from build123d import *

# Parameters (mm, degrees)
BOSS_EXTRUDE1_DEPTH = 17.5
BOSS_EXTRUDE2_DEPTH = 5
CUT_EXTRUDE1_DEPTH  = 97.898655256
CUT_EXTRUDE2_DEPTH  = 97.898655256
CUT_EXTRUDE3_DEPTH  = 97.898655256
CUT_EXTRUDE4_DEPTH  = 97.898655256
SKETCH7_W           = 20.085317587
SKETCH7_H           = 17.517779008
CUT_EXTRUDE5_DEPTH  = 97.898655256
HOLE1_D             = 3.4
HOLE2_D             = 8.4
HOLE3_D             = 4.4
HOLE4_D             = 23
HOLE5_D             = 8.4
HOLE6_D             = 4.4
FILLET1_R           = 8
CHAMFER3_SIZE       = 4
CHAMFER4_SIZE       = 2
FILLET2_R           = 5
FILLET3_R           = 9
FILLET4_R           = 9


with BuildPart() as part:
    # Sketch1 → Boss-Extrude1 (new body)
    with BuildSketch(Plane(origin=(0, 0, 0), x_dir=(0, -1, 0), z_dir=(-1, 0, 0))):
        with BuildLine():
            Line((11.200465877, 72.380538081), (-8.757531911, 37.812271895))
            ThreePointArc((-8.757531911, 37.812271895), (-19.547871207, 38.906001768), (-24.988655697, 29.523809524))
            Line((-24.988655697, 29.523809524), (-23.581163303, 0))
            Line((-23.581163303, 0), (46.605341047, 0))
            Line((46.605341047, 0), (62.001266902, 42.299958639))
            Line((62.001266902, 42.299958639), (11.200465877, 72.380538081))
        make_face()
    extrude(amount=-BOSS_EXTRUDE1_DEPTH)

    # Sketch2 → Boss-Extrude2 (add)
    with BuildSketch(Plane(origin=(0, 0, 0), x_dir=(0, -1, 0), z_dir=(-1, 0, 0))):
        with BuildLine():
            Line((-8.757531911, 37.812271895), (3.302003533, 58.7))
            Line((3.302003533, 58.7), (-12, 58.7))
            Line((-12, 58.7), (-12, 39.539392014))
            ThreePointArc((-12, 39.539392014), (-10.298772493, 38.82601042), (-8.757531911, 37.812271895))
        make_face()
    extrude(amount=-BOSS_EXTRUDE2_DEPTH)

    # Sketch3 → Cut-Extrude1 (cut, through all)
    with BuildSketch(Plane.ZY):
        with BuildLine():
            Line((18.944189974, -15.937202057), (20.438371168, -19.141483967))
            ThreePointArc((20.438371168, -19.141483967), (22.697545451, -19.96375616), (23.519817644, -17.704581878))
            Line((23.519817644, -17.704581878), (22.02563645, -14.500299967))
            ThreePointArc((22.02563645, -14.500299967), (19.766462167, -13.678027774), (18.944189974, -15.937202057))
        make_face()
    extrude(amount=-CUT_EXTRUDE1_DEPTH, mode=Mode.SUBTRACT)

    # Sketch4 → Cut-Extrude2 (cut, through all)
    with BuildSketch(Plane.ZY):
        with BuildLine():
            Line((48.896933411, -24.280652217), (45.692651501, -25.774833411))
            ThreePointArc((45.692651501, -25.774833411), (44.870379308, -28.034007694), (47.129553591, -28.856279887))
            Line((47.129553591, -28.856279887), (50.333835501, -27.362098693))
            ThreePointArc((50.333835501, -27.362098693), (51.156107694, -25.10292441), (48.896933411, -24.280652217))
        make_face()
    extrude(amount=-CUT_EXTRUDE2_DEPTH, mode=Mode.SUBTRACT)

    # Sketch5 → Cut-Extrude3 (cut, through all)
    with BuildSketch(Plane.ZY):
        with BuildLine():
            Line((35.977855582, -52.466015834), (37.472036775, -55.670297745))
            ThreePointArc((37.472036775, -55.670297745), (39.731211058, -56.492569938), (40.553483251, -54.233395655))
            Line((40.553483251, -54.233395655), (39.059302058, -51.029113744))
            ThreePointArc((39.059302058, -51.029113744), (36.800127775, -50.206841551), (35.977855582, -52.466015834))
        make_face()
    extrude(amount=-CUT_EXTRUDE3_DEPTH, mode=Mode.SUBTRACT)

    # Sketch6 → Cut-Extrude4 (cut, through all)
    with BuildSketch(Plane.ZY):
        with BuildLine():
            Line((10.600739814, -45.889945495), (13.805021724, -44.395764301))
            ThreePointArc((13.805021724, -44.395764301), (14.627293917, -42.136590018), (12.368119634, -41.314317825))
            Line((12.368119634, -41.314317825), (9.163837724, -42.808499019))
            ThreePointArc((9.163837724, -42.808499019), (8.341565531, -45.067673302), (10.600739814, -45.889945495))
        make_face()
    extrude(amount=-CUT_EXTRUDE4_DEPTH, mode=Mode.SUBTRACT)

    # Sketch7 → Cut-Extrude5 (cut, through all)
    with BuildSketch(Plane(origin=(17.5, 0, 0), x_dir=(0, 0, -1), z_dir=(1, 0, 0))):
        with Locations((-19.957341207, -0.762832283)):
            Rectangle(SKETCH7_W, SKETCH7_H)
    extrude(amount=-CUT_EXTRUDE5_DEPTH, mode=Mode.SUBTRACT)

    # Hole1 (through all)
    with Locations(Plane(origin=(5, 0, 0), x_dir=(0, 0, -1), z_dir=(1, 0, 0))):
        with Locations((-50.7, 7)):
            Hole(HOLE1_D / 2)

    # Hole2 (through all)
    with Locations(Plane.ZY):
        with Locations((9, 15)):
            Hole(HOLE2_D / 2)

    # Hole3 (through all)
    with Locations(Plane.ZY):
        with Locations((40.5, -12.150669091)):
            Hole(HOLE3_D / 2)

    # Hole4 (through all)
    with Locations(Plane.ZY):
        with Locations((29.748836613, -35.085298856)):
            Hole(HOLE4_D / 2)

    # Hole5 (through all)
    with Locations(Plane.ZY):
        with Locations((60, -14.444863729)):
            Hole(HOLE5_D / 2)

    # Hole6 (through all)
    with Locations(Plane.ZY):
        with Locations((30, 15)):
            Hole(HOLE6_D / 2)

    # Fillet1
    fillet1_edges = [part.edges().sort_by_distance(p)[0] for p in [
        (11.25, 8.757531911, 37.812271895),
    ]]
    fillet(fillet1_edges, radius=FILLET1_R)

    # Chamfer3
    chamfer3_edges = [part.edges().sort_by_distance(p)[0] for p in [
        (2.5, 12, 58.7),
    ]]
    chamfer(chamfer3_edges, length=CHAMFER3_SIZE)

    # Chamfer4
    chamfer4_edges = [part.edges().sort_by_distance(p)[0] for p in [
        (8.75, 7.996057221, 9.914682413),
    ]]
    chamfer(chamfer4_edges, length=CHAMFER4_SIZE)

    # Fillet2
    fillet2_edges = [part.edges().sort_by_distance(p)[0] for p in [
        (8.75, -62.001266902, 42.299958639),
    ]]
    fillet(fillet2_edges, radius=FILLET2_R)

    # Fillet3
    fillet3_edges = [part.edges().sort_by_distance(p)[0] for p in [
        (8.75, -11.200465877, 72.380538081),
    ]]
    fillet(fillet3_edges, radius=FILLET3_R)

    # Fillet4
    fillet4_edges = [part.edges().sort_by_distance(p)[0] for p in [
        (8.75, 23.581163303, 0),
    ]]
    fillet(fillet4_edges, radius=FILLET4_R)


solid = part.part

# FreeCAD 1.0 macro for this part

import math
import FreeCAD as App
import Part
import Sketcher

V = App.Vector
Q = App.Units.Quantity


def edges_at(feature, points):
    """Names of the edges that pass closest to the given points."""
    edges = feature.Shape.Edges
    near = lambda p: min(range(len(edges)), key=lambda i: edges[i].distToShape(Part.Vertex(*p))[0])
    return sorted({f"Edge{near(p) + 1}" for p in points})


def add_polygon(sketch, points):
    """Adds a closed chain of lines whose ends are joined by coincident constraints."""
    first, n = sketch.GeometryCount, len(points)
    for a, b in zip(points, points[1:] + points[:1]):
        sketch.addGeometry(Part.LineSegment(App.Vector(*a, 0), App.Vector(*b, 0)), False)
    for i in range(n):
        sketch.addConstraint(Sketcher.Constraint("Coincident", first + i, 2, first + (i + 1) % n, 1))

doc = App.newDocument("Part")
body = doc.addObject("PartDesign::Body", "Body")

# Sketch on YZ plane
sketch1 = body.newObject("Sketcher::SketchObject", "Sketch")
sketch1.AttachmentSupport = (doc.getObject("YZ_Plane"), [""])
sketch1.MapMode = "FlatFace"
sketch1.addGeometry([
    Part.LineSegment(V(-11, 72, 0), V(9, 38, 0)),  # 0
    Part.ArcOfCircle(Part.Circle(V(15, 30, 0), V(0, 0, 1), 10), math.radians(-3), math.radians(129)),  # 1
    Part.LineSegment(V(25, 30, 0), V(24, 0, 0)),  # 2
    Part.LineSegment(V(24, 0, 0), V(-47, 0, 0)),  # 3
    Part.LineSegment(V(-47, 0, 0), V(-62, 42, 0)),  # 4
    Part.LineSegment(V(-62, 42, 0), V(-11, 72, 0)),  # 5
], False)
sketch1.addConstraint([
    Sketcher.Constraint("Coincident", 0, 2, 1, 2),
    Sketcher.Constraint("Tangent", 1, 1, 2, 1),
    Sketcher.Constraint("Coincident", 2, 2, 3, 1),
    Sketcher.Constraint("Coincident", 3, 2, 4, 1),
    Sketcher.Constraint("Coincident", 4, 2, 5, 1),
    Sketcher.Constraint("Coincident", 5, 2, 0, 1),
    Sketcher.Constraint("Horizontal", 3),
    Sketcher.Constraint("PointOnObject", 2, 2, -1),
    Sketcher.Constraint("Radius", 1, 10.0),
    Sketcher.Constraint("Angle", 0, Q("-60 deg")),
    Sketcher.Constraint("Angle", 4, Q("110 deg")),
    Sketcher.Constraint("DistanceX", -1, 1, 1, 3, 15.0),
    Sketcher.Constraint("DistanceY", -1, 1, 1, 3, 30.0),
    Sketcher.Constraint("DistanceX", 4, 2, 0, 2, 70.758799),
    Sketcher.Constraint("DistanceX", 4, 2, 5, 2, 50.800801),
    Sketcher.Constraint("Distance", 2, 29.55734),
    Sketcher.Constraint("DistanceX", 3, 2, 3, 1, 70.186504),
    Sketcher.Constraint("DistanceX", -1, 1, 0, 2, 8.757532),
])
pad1 = body.newObject("PartDesign::Pad", "Pad")
pad1.Profile = sketch1
pad1.Length = 17.5

# Sketch on YZ plane
sketch2 = body.newObject("Sketcher::SketchObject", "Sketch001")
sketch2.AttachmentSupport = (doc.getObject("YZ_Plane"), [""])
sketch2.MapMode = "FlatFace"
sketch2.addGeometry([
    Part.LineSegment(V(8.8, 37.8, 0), V(-3.3, 58.7, 0)),
    Part.LineSegment(V(-3.3, 58.7, 0), V(12, 58.7, 0)),
    Part.LineSegment(V(12, 58.7, 0), V(12, 39.5, 0)),
    Part.ArcOfCircle(Part.Circle(V(15, 30, 0), V(0, 0, 1), 10), math.radians(107), math.radians(129)),
], False)
sketch2.addConstraint([
    Sketcher.Constraint("Coincident", 0, 2, 1, 1),
    Sketcher.Constraint("Coincident", 1, 2, 2, 1),
    Sketcher.Constraint("Coincident", 2, 2, 3, 1),
    Sketcher.Constraint("Coincident", 3, 2, 0, 1),
    Sketcher.Constraint("Horizontal", 1),
    Sketcher.Constraint("Vertical", 2),
    Sketcher.Constraint("Radius", 3, 10.0),
    Sketcher.Constraint("Angle", 0, Q("120 deg")),
    Sketcher.Constraint("DistanceX", -1, 1, 3, 3, 15.0),
    Sketcher.Constraint("DistanceY", -1, 1, 3, 3, 30.0),
    Sketcher.Constraint("DistanceX", -1, 1, 1, 2, 12.0),
    Sketcher.Constraint("DistanceY", -1, 1, 0, 2, 58.7),
    Sketcher.Constraint("Distance", 0, 24.119071),
])
pad2 = body.newObject("PartDesign::Pad", "Pad001")
pad2.Profile = sketch2
pad2.Length = 5

# Sketch on YZ plane
sketch3 = body.newObject("Sketcher::SketchObject", "Sketch002")
sketch3.AttachmentSupport = (doc.getObject("YZ_Plane"), [""])
sketch3.MapMode = "FlatFace"
sketch3.addGeometry([
    Part.LineSegment(V(-15.9, 18.9, 0), V(-19.1, 20.4, 0)),
    Part.ArcOfCircle(Part.Circle(V(-18.4, 22, 0), V(0, 0, 1), 1.7), math.radians(65), math.radians(245)),
    Part.LineSegment(V(-17.7, 23.5, 0), V(-14.5, 22, 0)),
    Part.ArcOfCircle(Part.Circle(V(-15.2, 20.5, 0), V(0, 0, 1), 1.7), math.radians(-115), math.radians(65)),
], False)
sketch3.addConstraint([
    Sketcher.Constraint("Tangent", 0, 2, 1, 2),
    Sketcher.Constraint("Tangent", 1, 1, 2, 1),
    Sketcher.Constraint("Tangent", 2, 2, 3, 2),
    Sketcher.Constraint("Tangent", 3, 1, 0, 1),
    Sketcher.Constraint("Equal", 1, 3),
    Sketcher.Constraint("Radius", 1, 1.7),
    Sketcher.Constraint("Angle", 0, Q("155 deg")),
    Sketcher.Constraint("DistanceX", 2, 2, -1, 1, 14.5003),
    Sketcher.Constraint("DistanceY", -1, 1, 0, 2, 20.438371),
    Sketcher.Constraint("DistanceX", 1, 1, -1, 1, 17.704582),
])
pocket1 = body.newObject("PartDesign::Pocket", "Pocket")
pocket1.Profile = sketch3
pocket1.Type = "ThroughAll"
pocket1.Reversed = True

# Sketch on YZ plane
sketch4 = body.newObject("Sketcher::SketchObject", "Sketch003")
sketch4.AttachmentSupport = (doc.getObject("YZ_Plane"), [""])
sketch4.MapMode = "FlatFace"
sketch4.addGeometry([
    Part.LineSegment(V(-24.3, 48.9, 0), V(-25.8, 45.7, 0)),
    Part.ArcOfCircle(Part.Circle(V(-27.3, 46.4, 0), V(0, 0, 1), 1.7), math.radians(155), math.radians(335)),
    Part.LineSegment(V(-28.9, 47.1, 0), V(-27.4, 50.3, 0)),
    Part.ArcOfCircle(Part.Circle(V(-25.8, 49.6, 0), V(0, 0, 1), 1.7), math.radians(-25), math.radians(155)),
], False)
sketch4.addConstraint([
    Sketcher.Constraint("Tangent", 0, 2, 1, 2),
    Sketcher.Constraint("Tangent", 1, 1, 2, 1),
    Sketcher.Constraint("Tangent", 2, 2, 3, 2),
    Sketcher.Constraint("Tangent", 3, 1, 0, 1),
    Sketcher.Constraint("Equal", 1, 3),
    Sketcher.Constraint("Radius", 1, 1.7),
    Sketcher.Constraint("Angle", 0, Q("-115 deg")),
    Sketcher.Constraint("DistanceX", 2, 2, -1, 1, 27.362099),
    Sketcher.Constraint("DistanceY", -1, 1, 0, 2, 45.692652),
    Sketcher.Constraint("DistanceX", 1, 1, -1, 1, 28.85628),
])
pocket2 = body.newObject("PartDesign::Pocket", "Pocket001")
pocket2.Profile = sketch4
pocket2.Type = "ThroughAll"
pocket2.Reversed = True

# Sketch on YZ plane
sketch5 = body.newObject("Sketcher::SketchObject", "Sketch004")
sketch5.AttachmentSupport = (doc.getObject("YZ_Plane"), [""])
sketch5.MapMode = "FlatFace"
sketch5.addGeometry([
    Part.LineSegment(V(-52.5, 36, 0), V(-55.7, 37.5, 0)),
    Part.ArcOfCircle(Part.Circle(V(-55, 39, 0), V(0, 0, 1), 1.7), math.radians(65), math.radians(245)),
    Part.LineSegment(V(-54.2, 40.6, 0), V(-51, 39.1, 0)),
    Part.ArcOfCircle(Part.Circle(V(-51.7, 37.5, 0), V(0, 0, 1), 1.7), math.radians(-115), math.radians(65)),
], False)
sketch5.addConstraint([
    Sketcher.Constraint("Tangent", 0, 2, 1, 2),
    Sketcher.Constraint("Tangent", 1, 1, 2, 1),
    Sketcher.Constraint("Tangent", 2, 2, 3, 2),
    Sketcher.Constraint("Tangent", 3, 1, 0, 1),
    Sketcher.Constraint("Equal", 1, 3),
    Sketcher.Constraint("Radius", 1, 1.7),
    Sketcher.Constraint("Angle", 0, Q("155 deg")),
    Sketcher.Constraint("DistanceY", -1, 1, 1, 3, 39.01276),
    Sketcher.Constraint("DistanceY", -1, 1, 3, 3, 37.518579),
    Sketcher.Constraint("DistanceX", 1, 3, -1, 1, 54.951847),
])
pocket3 = body.newObject("PartDesign::Pocket", "Pocket002")
pocket3.Profile = sketch5
pocket3.Type = "ThroughAll"
pocket3.Reversed = True

# Sketch on YZ plane
sketch6 = body.newObject("Sketcher::SketchObject", "Sketch005")
sketch6.AttachmentSupport = (doc.getObject("YZ_Plane"), [""])
sketch6.MapMode = "FlatFace"
sketch6.addGeometry([
    Part.LineSegment(V(-45.9, 10.6, 0), V(-44.4, 13.8, 0)),
    Part.ArcOfCircle(Part.Circle(V(-42.9, 13.1, 0), V(0, 0, 1), 1.7), math.radians(-25), math.radians(155)),
    Part.LineSegment(V(-41.3, 12.4, 0), V(-42.8, 9.2, 0)),
    Part.ArcOfCircle(Part.Circle(V(-44.3, 9.9, 0), V(0, 0, 1), 1.7), math.radians(155), math.radians(335)),
], False)
sketch6.addConstraint([
    Sketcher.Constraint("Tangent", 0, 2, 1, 2),
    Sketcher.Constraint("Tangent", 1, 1, 2, 1),
    Sketcher.Constraint("Tangent", 2, 2, 3, 2),
    Sketcher.Constraint("Tangent", 3, 1, 0, 1),
    Sketcher.Constraint("Equal", 1, 3),
    Sketcher.Constraint("Radius", 1, 1.7),
    Sketcher.Constraint("Angle", 0, Q("65 deg")),
    Sketcher.Constraint("DistanceX", 2, 2, -1, 1, 42.808499),
    Sketcher.Constraint("DistanceX", 1, 3, -1, 1, 42.855041),
    Sketcher.Constraint("DistanceY", -1, 1, 1, 3, 13.086571),
])
pocket4 = body.newObject("PartDesign::Pocket", "Pocket003")
pocket4.Profile = sketch6
pocket4.Type = "ThroughAll"
pocket4.Reversed = True

# Sketch on YZ plane
sketch7 = body.newObject("Sketcher::SketchObject", "Sketch006")
sketch7.AttachmentSupport = (doc.getObject("YZ_Plane"), [""])
sketch7.MapMode = "FlatFace"
sketch7.AttachmentOffset = App.Placement(V(0, 0, 17.5), App.Rotation())
add_polygon(sketch7, [(8, 30), (-10, 30), (-10, 10), (8, 10)])  # lines 0-3
sketch7.addConstraint([
    Sketcher.Constraint("Horizontal", 0),
    Sketcher.Constraint("Vertical", 1),
    Sketcher.Constraint("Horizontal", 2),
    Sketcher.Constraint("Vertical", 3),
    Sketcher.Constraint("DistanceY", -1, 1, 0, 2, 30.0),
    Sketcher.Constraint("DistanceX", 0, 2, 0, 1, 17.517779),
    Sketcher.Constraint("DistanceY", 1, 2, 1, 1, 20.085318),
    Sketcher.Constraint("DistanceX", 0, 2, -1, 1, 9.521722),
])
pocket5 = body.newObject("PartDesign::Pocket", "Pocket004")
pocket5.Profile = sketch7
pocket5.Type = "ThroughAll"

# Sketch on YZ plane
sketch8 = body.newObject("Sketcher::SketchObject", "Sketch007")
sketch8.AttachmentSupport = (doc.getObject("YZ_Plane"), [""])
sketch8.MapMode = "FlatFace"
sketch8.AttachmentOffset = App.Placement(V(0, 0, 5), App.Rotation())
sketch8.addGeometry(Part.Circle(V(7, 50.7, 0), V(0, 0, 1), 1.7), False)
sketch8.addConstraint([
    Sketcher.Constraint("Diameter", 0, 3.4),
    Sketcher.Constraint("DistanceX", -1, 1, 0, 3, 7.0),
    Sketcher.Constraint("DistanceY", -1, 1, 0, 3, 50.7),
])
doc.recompute()
hole = body.newObject("PartDesign::Hole", "Hole")
hole.Profile = sketch8
hole.ThreadType = "None"
hole.Diameter = 3.4
hole.DepthType = "ThroughAll"

# Sketch on YZ plane
sketch9 = body.newObject("Sketcher::SketchObject", "Sketch008")
sketch9.AttachmentSupport = (doc.getObject("YZ_Plane"), [""])
sketch9.MapMode = "FlatFace"
sketch9.addGeometry(Part.Circle(V(15, 9, 0), V(0, 0, 1), 4.2), False)
sketch9.addConstraint([
    Sketcher.Constraint("Diameter", 0, 8.4),
    Sketcher.Constraint("DistanceX", -1, 1, 0, 3, 15.0),
    Sketcher.Constraint("DistanceY", -1, 1, 0, 3, 9.0),
])
doc.recompute()
hole2 = body.newObject("PartDesign::Hole", "Hole001")
hole2.Profile = sketch9
hole2.ThreadType = "None"
hole2.Diameter = 8.4
hole2.DepthType = "ThroughAll"
hole2.Reversed = True

# Sketch on YZ plane
sketch10 = body.newObject("Sketcher::SketchObject", "Sketch009")
sketch10.AttachmentSupport = (doc.getObject("YZ_Plane"), [""])
sketch10.MapMode = "FlatFace"
sketch10.addGeometry(Part.Circle(V(-12.2, 40.5, 0), V(0, 0, 1), 2.2), False)
sketch10.addConstraint([
    Sketcher.Constraint("Diameter", 0, 4.4),
    Sketcher.Constraint("DistanceY", -1, 1, 0, 3, 40.5),
    Sketcher.Constraint("DistanceX", 0, 3, -1, 1, 12.150669),
])
doc.recompute()
hole3 = body.newObject("PartDesign::Hole", "Hole002")
hole3.Profile = sketch10
hole3.ThreadType = "None"
hole3.Diameter = 4.4
hole3.DepthType = "ThroughAll"
hole3.Reversed = True

# Sketch on YZ plane
sketch11 = body.newObject("Sketcher::SketchObject", "Sketch010")
sketch11.AttachmentSupport = (doc.getObject("YZ_Plane"), [""])
sketch11.MapMode = "FlatFace"
sketch11.addGeometry(Part.Circle(V(-35, 30, 0), V(0, 0, 1), 12), False)
sketch11.addConstraint([
    Sketcher.Constraint("Diameter", 0, 23.0),
    Sketcher.Constraint("DistanceX", 0, 3, -1, 1, 35.085299),
    Sketcher.Constraint("DistanceY", -1, 1, 0, 3, 29.748837),
])
doc.recompute()
hole4 = body.newObject("PartDesign::Hole", "Hole003")
hole4.Profile = sketch11
hole4.ThreadType = "None"
hole4.Diameter = 23
hole4.DepthType = "ThroughAll"
hole4.Reversed = True

# Sketch on YZ plane
sketch12 = body.newObject("Sketcher::SketchObject", "Sketch011")
sketch12.AttachmentSupport = (doc.getObject("YZ_Plane"), [""])
sketch12.MapMode = "FlatFace"
sketch12.addGeometry(Part.Circle(V(-14.4, 60, 0), V(0, 0, 1), 4.2), False)
sketch12.addConstraint([
    Sketcher.Constraint("Diameter", 0, 8.4),
    Sketcher.Constraint("DistanceY", -1, 1, 0, 3, 60.0),
    Sketcher.Constraint("DistanceX", 0, 3, -1, 1, 14.444864),
])
doc.recompute()
hole5 = body.newObject("PartDesign::Hole", "Hole004")
hole5.Profile = sketch12
hole5.ThreadType = "None"
hole5.Diameter = 8.4
hole5.DepthType = "ThroughAll"
hole5.Reversed = True

# Sketch on YZ plane
sketch13 = body.newObject("Sketcher::SketchObject", "Sketch012")
sketch13.AttachmentSupport = (doc.getObject("YZ_Plane"), [""])
sketch13.MapMode = "FlatFace"
sketch13.addGeometry(Part.Circle(V(15, 30, 0), V(0, 0, 1), 2.2), False)
sketch13.addConstraint([
    Sketcher.Constraint("Diameter", 0, 4.4),
    Sketcher.Constraint("DistanceX", -1, 1, 0, 3, 15.0),
    Sketcher.Constraint("DistanceY", -1, 1, 0, 3, 30.0),
])
doc.recompute()
hole6 = body.newObject("PartDesign::Hole", "Hole005")
hole6.Profile = sketch13
hole6.ThreadType = "None"
hole6.Diameter = 4.4
hole6.DepthType = "ThroughAll"
hole6.Reversed = True
doc.recompute()

fillet = body.newObject("PartDesign::Fillet", "Fillet")
fillet.Base = (hole6, edges_at(hole6, [(11.25, 8.758, 37.812)]))
fillet.Radius = 8
doc.recompute()

chamfer = body.newObject("PartDesign::Chamfer", "Chamfer")
chamfer.Base = (fillet, edges_at(fillet, [(2.5, 12, 58.7)]))
chamfer.Size = 4
doc.recompute()

chamfer2 = body.newObject("PartDesign::Chamfer", "Chamfer001")
chamfer2.Base = (chamfer, edges_at(chamfer, [(8.75, 7.996, 9.915)]))
chamfer2.Size = 2
doc.recompute()

fillet2 = body.newObject("PartDesign::Fillet", "Fillet001")
fillet2.Base = (chamfer2, edges_at(chamfer2, [(8.75, -62.001, 42.3)]))
fillet2.Radius = 5
doc.recompute()

fillet3 = body.newObject("PartDesign::Fillet", "Fillet002")
fillet3.Base = (fillet2, edges_at(fillet2, [(8.75, -11.2, 72.381)]))
fillet3.Radius = 9
doc.recompute()

fillet4 = body.newObject("PartDesign::Fillet", "Fillet003")
fillet4.Base = (fillet3, edges_at(fillet3, [(8.75, 23.581, 0)]))
fillet4.Radius = 9

doc.recompute()
